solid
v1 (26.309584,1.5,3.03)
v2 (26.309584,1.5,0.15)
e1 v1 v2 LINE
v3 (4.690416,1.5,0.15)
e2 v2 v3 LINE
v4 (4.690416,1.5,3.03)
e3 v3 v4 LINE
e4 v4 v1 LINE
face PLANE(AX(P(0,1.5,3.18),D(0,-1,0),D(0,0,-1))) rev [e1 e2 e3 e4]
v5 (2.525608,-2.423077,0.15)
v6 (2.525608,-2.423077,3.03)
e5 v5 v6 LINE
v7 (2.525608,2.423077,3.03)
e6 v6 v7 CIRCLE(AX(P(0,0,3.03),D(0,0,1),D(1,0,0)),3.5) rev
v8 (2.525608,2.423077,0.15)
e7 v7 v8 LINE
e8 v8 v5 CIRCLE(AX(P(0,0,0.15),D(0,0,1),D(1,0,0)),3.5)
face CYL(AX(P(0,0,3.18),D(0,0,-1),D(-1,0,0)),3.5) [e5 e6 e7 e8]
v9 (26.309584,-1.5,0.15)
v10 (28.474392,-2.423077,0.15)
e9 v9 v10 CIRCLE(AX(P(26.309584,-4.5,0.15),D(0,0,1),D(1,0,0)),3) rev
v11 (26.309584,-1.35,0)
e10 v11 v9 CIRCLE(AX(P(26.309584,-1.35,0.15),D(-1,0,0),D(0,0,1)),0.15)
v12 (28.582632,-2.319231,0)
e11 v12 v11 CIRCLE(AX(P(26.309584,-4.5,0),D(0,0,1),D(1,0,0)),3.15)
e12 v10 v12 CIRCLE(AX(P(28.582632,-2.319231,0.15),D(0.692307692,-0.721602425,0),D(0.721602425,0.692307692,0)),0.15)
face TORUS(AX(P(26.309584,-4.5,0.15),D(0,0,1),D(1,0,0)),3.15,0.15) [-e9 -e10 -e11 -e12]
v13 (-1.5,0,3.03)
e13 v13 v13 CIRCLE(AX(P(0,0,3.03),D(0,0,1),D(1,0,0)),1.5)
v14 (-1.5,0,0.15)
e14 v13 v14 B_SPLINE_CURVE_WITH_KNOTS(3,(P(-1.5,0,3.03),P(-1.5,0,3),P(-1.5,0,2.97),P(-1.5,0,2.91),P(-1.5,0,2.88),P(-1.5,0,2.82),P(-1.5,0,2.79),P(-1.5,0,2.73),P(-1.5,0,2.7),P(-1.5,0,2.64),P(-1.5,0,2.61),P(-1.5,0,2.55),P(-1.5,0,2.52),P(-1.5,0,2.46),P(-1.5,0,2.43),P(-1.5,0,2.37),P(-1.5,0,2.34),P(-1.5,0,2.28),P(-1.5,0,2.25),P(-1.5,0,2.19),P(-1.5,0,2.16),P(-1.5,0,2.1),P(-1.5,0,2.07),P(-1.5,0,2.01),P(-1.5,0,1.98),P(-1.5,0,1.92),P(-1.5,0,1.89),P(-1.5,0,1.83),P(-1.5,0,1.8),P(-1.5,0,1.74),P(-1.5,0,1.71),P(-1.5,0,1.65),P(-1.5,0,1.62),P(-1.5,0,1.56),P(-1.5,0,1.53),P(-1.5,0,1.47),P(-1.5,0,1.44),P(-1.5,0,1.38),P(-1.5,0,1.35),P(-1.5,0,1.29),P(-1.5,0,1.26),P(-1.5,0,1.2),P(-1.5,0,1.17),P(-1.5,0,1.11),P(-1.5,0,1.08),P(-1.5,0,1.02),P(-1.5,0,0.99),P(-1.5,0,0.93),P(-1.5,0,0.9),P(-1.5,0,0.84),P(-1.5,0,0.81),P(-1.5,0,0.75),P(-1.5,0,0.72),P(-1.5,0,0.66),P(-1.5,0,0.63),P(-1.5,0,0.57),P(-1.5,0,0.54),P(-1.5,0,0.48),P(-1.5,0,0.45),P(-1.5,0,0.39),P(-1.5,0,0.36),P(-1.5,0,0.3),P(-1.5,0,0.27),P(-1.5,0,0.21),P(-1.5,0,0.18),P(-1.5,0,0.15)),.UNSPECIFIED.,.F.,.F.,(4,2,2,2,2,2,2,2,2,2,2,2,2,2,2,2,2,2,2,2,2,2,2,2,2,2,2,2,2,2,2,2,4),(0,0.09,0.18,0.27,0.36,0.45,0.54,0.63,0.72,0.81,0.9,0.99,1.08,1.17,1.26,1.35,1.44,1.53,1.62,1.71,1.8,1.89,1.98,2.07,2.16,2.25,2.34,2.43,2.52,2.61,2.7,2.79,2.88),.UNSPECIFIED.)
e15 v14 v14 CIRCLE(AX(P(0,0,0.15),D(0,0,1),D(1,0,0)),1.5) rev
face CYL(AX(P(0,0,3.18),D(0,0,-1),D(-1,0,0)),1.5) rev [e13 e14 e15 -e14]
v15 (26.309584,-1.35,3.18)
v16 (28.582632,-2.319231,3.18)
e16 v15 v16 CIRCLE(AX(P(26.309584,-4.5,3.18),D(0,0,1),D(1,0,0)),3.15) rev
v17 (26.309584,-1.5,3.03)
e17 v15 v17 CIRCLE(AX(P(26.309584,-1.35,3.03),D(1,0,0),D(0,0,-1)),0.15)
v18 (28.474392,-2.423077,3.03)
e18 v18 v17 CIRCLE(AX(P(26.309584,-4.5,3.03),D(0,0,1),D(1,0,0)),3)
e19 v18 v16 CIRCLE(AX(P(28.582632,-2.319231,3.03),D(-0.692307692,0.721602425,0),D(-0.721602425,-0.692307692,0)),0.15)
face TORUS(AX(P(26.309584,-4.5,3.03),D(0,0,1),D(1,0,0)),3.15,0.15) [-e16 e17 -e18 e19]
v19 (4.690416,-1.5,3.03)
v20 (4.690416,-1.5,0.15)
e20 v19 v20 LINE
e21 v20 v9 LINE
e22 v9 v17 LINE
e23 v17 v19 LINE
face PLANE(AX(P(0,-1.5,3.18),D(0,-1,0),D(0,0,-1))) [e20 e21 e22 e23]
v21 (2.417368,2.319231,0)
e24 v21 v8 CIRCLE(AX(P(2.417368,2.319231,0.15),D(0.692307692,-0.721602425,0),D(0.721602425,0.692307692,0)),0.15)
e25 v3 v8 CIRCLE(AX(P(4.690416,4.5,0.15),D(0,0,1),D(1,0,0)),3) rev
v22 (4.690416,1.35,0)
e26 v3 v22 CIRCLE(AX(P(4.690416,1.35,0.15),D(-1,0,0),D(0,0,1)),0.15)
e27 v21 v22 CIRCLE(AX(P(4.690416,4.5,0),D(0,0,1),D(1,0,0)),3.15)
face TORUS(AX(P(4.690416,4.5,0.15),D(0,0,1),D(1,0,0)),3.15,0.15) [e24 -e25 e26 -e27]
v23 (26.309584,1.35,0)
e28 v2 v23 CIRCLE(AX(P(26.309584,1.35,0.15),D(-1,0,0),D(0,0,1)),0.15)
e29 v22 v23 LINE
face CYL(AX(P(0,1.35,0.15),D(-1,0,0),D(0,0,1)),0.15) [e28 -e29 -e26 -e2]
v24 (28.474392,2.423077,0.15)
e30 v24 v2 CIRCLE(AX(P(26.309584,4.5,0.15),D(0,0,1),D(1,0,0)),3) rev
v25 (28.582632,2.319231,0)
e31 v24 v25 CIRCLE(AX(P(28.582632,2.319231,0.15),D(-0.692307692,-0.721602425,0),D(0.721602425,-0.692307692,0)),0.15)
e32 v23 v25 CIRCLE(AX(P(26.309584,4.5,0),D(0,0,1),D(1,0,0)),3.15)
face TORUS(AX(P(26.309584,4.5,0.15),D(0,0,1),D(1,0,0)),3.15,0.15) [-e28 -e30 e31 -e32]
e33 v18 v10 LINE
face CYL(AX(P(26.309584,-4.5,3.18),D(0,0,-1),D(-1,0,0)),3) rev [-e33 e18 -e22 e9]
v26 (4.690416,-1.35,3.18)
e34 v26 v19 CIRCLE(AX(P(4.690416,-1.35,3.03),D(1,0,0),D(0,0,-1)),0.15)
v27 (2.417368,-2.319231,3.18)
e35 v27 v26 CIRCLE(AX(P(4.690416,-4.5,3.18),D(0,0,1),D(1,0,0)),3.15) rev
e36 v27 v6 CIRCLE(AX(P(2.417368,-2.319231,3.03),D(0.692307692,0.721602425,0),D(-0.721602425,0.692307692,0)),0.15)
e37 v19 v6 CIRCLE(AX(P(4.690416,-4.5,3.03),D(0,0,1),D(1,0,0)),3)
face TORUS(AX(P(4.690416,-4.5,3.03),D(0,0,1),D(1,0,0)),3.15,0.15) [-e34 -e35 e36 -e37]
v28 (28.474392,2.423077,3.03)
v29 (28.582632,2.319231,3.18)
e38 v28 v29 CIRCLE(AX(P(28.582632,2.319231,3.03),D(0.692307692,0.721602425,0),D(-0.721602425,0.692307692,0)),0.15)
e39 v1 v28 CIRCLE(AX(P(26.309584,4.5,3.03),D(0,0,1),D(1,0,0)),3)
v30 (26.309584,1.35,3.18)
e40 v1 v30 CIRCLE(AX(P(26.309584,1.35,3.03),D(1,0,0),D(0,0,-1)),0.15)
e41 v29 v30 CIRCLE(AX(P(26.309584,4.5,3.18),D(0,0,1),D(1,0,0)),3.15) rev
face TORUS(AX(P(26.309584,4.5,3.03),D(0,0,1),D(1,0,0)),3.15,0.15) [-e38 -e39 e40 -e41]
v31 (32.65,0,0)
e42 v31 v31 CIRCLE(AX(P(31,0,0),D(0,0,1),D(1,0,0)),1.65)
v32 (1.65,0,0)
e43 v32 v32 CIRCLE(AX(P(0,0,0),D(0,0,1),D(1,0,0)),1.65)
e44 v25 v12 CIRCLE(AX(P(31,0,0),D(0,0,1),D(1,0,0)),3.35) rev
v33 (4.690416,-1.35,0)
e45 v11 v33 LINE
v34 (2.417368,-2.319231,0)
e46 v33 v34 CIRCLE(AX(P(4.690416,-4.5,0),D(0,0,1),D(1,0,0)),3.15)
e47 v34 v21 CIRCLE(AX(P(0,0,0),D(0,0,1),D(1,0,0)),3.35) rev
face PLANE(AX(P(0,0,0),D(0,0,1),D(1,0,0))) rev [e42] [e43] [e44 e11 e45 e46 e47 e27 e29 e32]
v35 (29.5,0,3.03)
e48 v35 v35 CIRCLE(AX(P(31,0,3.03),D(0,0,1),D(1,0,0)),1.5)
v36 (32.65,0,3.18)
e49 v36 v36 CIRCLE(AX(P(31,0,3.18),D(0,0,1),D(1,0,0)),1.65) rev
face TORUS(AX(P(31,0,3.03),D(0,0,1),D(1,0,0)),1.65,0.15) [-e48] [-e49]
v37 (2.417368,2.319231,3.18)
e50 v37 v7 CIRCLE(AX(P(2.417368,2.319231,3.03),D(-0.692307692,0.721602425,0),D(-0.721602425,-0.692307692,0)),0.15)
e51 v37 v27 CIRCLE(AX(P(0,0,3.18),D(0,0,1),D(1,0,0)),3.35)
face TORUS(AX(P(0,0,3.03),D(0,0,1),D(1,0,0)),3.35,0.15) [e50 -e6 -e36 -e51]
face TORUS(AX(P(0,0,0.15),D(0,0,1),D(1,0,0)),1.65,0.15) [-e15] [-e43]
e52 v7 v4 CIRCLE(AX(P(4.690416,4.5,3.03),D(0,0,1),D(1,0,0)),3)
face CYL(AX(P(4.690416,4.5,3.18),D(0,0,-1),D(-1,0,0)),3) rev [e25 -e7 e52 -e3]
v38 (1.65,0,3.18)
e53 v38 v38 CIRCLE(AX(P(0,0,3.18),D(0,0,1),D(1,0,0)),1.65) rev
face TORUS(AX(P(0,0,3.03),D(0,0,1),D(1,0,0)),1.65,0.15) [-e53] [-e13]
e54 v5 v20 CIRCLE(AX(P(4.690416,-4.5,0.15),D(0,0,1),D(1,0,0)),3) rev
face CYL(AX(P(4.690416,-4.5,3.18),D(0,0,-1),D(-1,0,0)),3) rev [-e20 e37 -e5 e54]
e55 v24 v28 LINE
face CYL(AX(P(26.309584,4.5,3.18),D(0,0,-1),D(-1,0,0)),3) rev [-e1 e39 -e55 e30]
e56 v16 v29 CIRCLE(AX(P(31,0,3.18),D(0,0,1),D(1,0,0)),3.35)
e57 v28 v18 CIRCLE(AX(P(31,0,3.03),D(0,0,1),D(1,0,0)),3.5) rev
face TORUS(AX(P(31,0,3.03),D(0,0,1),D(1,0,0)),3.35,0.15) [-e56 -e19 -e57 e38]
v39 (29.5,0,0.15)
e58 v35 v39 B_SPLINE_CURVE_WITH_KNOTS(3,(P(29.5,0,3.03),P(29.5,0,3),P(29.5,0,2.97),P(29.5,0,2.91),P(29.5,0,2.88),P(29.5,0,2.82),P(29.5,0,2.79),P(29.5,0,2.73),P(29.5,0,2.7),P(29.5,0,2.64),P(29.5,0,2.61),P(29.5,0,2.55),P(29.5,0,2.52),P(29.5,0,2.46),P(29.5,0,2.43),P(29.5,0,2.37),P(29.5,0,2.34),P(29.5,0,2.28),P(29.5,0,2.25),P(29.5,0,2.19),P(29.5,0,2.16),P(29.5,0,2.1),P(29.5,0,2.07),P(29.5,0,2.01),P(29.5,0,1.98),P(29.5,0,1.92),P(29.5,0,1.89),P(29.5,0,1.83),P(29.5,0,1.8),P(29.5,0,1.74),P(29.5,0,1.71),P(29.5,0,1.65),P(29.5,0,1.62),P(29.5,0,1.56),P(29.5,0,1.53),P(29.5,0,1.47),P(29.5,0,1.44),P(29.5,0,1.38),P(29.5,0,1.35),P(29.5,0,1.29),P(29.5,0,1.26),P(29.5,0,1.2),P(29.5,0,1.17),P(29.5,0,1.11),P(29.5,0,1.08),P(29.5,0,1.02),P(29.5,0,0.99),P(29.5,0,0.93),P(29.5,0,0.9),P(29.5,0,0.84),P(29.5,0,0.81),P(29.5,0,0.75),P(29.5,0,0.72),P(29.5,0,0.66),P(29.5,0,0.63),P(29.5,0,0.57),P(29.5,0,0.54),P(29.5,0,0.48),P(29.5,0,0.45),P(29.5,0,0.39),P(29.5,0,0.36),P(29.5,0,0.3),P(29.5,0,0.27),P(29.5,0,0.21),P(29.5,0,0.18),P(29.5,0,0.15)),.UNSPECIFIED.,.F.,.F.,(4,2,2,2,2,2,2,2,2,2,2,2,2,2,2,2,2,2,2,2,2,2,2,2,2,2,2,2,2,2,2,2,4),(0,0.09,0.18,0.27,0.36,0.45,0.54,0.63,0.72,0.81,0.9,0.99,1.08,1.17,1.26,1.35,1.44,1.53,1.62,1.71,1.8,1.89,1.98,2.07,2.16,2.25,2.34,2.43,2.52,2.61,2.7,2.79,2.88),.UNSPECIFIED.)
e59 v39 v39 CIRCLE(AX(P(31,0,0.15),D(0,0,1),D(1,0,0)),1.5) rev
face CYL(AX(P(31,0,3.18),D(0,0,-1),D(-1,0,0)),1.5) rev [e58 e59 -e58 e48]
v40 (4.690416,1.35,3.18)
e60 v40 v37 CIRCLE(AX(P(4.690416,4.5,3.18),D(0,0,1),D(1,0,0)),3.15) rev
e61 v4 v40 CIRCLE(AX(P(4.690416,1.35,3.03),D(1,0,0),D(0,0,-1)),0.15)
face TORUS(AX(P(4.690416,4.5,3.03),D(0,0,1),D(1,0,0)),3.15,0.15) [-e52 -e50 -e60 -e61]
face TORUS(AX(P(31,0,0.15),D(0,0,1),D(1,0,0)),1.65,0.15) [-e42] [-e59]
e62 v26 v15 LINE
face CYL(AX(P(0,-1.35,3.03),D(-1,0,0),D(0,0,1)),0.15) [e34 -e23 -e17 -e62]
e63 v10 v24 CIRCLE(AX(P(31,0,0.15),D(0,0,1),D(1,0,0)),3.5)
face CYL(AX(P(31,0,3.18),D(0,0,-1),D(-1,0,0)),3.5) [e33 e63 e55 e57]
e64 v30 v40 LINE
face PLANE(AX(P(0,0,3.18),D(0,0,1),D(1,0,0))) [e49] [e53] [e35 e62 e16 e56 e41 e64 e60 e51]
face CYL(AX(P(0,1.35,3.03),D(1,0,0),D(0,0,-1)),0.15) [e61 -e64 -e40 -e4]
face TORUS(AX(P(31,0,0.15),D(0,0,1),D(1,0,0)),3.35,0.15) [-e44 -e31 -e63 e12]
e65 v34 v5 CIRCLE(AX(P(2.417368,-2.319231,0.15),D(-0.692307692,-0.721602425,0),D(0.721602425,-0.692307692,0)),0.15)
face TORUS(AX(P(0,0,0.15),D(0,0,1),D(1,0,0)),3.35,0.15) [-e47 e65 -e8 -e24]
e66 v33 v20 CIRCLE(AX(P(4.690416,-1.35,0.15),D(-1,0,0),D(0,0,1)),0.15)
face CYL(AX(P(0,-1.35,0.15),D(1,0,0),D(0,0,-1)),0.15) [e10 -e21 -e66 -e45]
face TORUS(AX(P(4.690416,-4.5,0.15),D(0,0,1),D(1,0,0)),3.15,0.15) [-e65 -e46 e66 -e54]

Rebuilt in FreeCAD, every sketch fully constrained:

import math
import FreeCAD as App
import Part
import Sketcher
Q = App.Units.Quantity


def edges_at(feature, points):
    """Names of the edges that pass closest to the given points."""
    edges = feature.Shape.Edges
    near = lambda p: min(range(len(edges)), key=lambda i: edges[i].distToShape(Part.Vertex(*p))[0])
    return sorted({f"Edge{near(p) + 1}" for p in points})

doc = App.newDocument("Part")
body = doc.addObject("PartDesign::Body", "Body")

sketch1 = body.newObject("Sketcher::SketchObject", "Sketch")
sketch1.AttachmentSupport = (doc.getObject("XY_Plane"), [""])
sketch1.MapMode = "FlatFace"
sketch1.addGeometry([
    Part.ArcOfCircle(Part.Circle(App.Vector(0, 0, 0), App.Vector(0, 0, 1), 3.5), math.radians(25), math.radians(335)),
    Part.LineSegment(App.Vector(3.2, -1.5, 0), App.Vector(27.8, -1.5, 0)),
    Part.ArcOfCircle(Part.Circle(App.Vector(31, 0, 0), App.Vector(0, 0, 1), 3.5), math.radians(-155), math.radians(155)),
    Part.LineSegment(App.Vector(27.8, 1.5, 0), App.Vector(3.2, 1.5, 0)),
    Part.Circle(App.Vector(0, 0, 0), App.Vector(0, 0, 1), 1.5),
    Part.Circle(App.Vector(31, 0, 0), App.Vector(0, 0, 1), 1.5),
], False)
sketch1.addConstraint([
    Sketcher.Constraint("Coincident", 0, 2, 1, 1),
    Sketcher.Constraint("Coincident", 1, 2, 2, 1),
    Sketcher.Constraint("Coincident", 2, 2, 3, 1),
    Sketcher.Constraint("Coincident", 3, 2, 0, 1),
    Sketcher.Constraint("Horizontal", 1),
    Sketcher.Constraint("Horizontal", 3),
    Sketcher.Constraint("Coincident", 0, 3, -1, 1),
    Sketcher.Constraint("Coincident", 4, 3, -1, 1),
    Sketcher.Constraint("Coincident", 5, 3, 2, 3),
    Sketcher.Constraint("Equal", 0, 2),
    Sketcher.Constraint("Equal", 4, 5),
    Sketcher.Constraint("Symmetric", 1, 2, 2, 2, -1),
    Sketcher.Constraint("Diameter", 4, Q("3 mm")),
    Sketcher.Constraint("Radius", 0, Q("3.5 mm")),
    Sketcher.Constraint("DistanceX", -1, 1, 2, 3, Q("31 mm")),
    Sketcher.Constraint("DistanceY", 1, 2, 2, 2, Q("3 mm")),
])
pad1 = body.newObject("PartDesign::Pad", "Pad")
pad1.Profile = sketch1
pad1.Length = 3.18
doc.recompute()

fillet = body.newObject("PartDesign::Fillet", "Fillet")
fillet.Base = (pad1, edges_at(pad1, [
    (27.838, 1.5, 1.59),
    (27.838, -1.5, 1.59),
    (3.162, -1.5, 1.59),
    (3.162, 1.5, 1.59),
]))
fillet.Radius = 3
doc.recompute()

fillet2 = body.newObject("PartDesign::Fillet", "Fillet001")
fillet2.Base = (fillet, edges_at(fillet, [
    (15.5, 1.5, 0),
    (15.5, 1.5, 3.18),
    (1.5, 0, 3.18),
    (34.5, 0, 0),
    (34.5, 0, 3.18),
    (-3.5, 0, 0),
    (-3.5, 0, 3.18),
    (32.5, 0, 3.18),
    (15.5, -1.5, 0),
    (15.5, -1.5, 3.18),
    (27.486, 1.74, 0),
    (27.486, 1.74, 3.18),
    (3.514, 1.74, 0),
    (3.514, 1.74, 3.18),
    (27.486, -1.74, 0),
    (27.486, -1.74, 3.18),
    (3.514, -1.74, 0),
    (3.514, -1.74, 3.18),
    (32.5, 0, 0),
    (1.5, 0, 0),
]))
fillet2.Radius = 0.15

doc.recompute()
